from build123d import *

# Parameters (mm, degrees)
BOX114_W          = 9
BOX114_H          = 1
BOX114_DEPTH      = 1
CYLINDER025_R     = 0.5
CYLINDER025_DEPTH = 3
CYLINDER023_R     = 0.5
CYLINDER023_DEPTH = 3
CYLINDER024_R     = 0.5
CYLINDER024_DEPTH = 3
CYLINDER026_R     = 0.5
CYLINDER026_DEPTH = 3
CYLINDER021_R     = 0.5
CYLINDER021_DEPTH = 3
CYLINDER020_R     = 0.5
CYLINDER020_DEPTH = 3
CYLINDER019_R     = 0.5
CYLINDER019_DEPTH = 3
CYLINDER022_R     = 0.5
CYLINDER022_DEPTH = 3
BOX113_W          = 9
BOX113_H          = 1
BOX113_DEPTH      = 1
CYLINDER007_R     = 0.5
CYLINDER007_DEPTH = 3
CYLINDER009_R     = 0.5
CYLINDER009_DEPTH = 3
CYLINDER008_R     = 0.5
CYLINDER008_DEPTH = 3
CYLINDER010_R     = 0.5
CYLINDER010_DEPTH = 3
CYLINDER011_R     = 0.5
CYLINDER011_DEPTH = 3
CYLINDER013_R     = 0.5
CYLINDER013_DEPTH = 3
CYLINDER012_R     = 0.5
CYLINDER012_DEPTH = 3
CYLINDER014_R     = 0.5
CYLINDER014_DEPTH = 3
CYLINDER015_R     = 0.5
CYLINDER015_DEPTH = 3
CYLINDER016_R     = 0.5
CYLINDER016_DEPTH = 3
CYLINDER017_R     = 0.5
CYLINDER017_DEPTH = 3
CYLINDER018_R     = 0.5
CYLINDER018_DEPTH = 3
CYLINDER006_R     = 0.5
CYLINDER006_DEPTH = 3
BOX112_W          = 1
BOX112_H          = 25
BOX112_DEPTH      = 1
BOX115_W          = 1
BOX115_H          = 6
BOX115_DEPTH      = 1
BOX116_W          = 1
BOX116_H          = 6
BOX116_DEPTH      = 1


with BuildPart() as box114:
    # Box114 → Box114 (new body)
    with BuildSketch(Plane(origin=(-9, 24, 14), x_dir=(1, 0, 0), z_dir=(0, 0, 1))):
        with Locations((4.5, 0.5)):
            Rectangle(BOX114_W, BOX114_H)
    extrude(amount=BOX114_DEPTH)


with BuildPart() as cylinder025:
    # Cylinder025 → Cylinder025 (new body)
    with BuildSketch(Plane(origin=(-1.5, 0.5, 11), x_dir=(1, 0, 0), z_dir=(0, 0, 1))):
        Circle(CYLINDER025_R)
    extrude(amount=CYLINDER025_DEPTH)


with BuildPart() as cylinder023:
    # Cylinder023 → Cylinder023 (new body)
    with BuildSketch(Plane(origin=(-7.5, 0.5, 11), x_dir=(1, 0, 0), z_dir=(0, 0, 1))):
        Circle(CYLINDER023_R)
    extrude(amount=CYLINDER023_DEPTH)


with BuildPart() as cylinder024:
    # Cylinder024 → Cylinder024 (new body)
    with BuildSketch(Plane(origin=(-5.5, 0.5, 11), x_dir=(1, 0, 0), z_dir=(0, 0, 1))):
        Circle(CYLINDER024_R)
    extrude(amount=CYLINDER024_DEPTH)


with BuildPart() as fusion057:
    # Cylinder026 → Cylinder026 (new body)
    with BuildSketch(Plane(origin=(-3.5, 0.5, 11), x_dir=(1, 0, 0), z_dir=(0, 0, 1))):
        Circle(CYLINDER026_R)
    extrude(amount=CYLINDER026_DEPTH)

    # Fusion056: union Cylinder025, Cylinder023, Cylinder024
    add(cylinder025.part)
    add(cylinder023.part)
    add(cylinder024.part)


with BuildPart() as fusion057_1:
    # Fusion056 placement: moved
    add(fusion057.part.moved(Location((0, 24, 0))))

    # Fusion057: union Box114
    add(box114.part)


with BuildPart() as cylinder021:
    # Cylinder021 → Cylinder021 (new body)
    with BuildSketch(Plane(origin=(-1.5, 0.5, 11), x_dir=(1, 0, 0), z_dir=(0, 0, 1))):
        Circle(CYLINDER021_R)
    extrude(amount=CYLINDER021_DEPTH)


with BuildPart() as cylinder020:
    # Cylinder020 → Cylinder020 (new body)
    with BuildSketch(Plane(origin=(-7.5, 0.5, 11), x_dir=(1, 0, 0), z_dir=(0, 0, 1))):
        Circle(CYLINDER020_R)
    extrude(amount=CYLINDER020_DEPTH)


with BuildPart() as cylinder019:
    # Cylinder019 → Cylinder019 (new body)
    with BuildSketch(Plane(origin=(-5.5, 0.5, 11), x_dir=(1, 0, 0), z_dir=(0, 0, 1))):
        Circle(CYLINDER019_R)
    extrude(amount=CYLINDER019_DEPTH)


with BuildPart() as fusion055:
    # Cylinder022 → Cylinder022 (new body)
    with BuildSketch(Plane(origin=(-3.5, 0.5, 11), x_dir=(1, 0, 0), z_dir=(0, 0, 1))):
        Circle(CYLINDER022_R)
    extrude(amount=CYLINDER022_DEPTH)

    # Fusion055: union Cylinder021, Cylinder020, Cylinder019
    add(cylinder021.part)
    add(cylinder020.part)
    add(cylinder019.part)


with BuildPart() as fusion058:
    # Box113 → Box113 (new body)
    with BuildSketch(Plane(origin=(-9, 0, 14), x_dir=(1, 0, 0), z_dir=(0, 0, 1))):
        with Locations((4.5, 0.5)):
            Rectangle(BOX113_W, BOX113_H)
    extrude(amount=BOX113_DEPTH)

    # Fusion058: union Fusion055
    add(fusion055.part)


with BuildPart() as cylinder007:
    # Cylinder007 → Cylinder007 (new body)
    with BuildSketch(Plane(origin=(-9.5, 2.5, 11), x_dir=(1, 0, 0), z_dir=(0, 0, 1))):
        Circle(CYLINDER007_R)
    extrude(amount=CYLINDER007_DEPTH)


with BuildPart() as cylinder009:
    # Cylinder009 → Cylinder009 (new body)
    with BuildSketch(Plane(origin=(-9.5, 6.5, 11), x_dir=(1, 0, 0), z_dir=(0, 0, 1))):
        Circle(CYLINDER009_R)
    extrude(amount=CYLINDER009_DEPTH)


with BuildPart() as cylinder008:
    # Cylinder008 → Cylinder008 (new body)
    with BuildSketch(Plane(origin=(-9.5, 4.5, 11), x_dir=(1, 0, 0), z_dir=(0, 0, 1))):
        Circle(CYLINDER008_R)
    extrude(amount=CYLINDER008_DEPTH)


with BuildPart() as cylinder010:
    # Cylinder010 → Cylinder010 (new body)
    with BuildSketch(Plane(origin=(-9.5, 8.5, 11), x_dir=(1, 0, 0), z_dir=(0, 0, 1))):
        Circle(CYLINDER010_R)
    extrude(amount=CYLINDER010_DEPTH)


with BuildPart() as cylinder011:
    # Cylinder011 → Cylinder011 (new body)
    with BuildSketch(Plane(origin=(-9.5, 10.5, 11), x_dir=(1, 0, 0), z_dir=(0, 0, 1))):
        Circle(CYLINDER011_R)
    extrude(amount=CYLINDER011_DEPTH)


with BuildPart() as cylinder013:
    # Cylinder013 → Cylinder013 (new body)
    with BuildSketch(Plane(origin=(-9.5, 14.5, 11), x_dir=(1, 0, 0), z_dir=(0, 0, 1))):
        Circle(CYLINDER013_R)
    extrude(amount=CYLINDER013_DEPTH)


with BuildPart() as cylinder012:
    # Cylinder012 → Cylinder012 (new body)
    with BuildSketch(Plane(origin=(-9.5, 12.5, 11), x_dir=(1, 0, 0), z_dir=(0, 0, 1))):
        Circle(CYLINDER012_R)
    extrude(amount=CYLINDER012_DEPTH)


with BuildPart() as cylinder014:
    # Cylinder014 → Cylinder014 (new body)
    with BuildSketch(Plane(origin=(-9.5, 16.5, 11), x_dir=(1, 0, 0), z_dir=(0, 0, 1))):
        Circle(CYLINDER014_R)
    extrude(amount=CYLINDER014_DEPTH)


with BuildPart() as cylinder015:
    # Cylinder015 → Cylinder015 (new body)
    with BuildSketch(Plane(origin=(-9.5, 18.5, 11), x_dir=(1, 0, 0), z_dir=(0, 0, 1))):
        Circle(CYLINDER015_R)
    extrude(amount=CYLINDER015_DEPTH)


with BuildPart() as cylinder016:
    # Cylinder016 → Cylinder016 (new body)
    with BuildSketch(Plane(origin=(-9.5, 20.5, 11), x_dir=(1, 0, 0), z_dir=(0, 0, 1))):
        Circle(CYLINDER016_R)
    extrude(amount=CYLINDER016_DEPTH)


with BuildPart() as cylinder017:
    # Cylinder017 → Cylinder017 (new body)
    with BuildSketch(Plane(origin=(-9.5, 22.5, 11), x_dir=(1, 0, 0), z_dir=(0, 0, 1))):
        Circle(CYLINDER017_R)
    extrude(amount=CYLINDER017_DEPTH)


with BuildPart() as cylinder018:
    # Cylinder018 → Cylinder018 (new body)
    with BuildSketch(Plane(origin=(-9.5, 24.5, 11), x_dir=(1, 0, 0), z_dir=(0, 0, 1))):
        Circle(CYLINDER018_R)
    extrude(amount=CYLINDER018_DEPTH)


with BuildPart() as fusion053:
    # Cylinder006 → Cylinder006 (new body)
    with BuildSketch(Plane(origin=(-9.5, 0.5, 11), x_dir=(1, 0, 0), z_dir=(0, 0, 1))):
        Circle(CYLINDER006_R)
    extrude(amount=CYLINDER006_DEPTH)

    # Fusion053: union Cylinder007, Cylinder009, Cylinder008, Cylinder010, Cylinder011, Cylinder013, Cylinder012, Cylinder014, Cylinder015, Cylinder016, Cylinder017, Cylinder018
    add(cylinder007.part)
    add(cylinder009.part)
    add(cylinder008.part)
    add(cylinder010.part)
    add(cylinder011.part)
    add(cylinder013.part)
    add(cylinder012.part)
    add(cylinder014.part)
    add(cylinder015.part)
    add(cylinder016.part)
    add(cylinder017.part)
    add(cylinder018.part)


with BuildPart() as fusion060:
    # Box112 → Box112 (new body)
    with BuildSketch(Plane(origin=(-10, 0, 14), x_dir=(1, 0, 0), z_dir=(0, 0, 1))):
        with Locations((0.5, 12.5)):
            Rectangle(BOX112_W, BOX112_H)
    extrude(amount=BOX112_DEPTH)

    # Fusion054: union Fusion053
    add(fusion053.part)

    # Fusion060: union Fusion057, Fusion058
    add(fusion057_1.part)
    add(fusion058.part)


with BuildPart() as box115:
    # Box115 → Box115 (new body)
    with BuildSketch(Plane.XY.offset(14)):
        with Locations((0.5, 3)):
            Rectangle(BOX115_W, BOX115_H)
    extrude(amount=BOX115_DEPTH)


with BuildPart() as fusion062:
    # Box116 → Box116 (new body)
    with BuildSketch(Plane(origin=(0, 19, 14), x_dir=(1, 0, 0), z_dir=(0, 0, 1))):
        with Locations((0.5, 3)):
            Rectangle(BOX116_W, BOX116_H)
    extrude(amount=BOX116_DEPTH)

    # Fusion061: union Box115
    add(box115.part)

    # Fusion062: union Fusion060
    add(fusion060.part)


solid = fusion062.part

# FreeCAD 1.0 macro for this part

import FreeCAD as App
import Part
import Sketcher
Q = App.Units.Quantity

doc = App.newDocument("Part")
body = doc.addObject("PartDesign::Body", "Body")

sketch1 = doc.addObject("Sketcher::SketchObject", "Sketch")
body.addObject(sketch1)
sketch1.AttachmentSupport = (doc.XY_Plane, [""])
sketch1.MapMode = "FlatFace"
sketch1.AttachmentOffset = App.Placement(App.Vector(0, 0, 14), App.Rotation())
sketch1.addGeometry(Part.LineSegment(App.Vector(-9, 25, 0), App.Vector(-9, 24, 0)), False)
sketch1.addGeometry(Part.LineSegment(App.Vector(-9, 24, 0), App.Vector(0, 24, 0)), False)
sketch1.addGeometry(Part.LineSegment(App.Vector(0, 24, 0), App.Vector(0, 25, 0)), False)
sketch1.addGeometry(Part.LineSegment(App.Vector(0, 25, 0), App.Vector(-9, 25, 0)), False)
sketch1.addConstraint(Sketcher.Constraint("Coincident", 0, 2, 1, 1))
sketch1.addConstraint(Sketcher.Constraint("Coincident", 1, 2, 2, 1))
sketch1.addConstraint(Sketcher.Constraint("Coincident", 2, 2, 3, 1))
sketch1.addConstraint(Sketcher.Constraint("Coincident", 3, 2, 0, 1))
sketch1.addConstraint(Sketcher.Constraint("Vertical", 0))
sketch1.addConstraint(Sketcher.Constraint("Horizontal", 1))
sketch1.addConstraint(Sketcher.Constraint("Vertical", 2))
sketch1.addConstraint(Sketcher.Constraint("Horizontal", 3))
sketch1.addConstraint(Sketcher.Constraint("PointOnObject", 1, 2, -2))
sketch1.addConstraint(Sketcher.Constraint("DistanceX", 1, 1, 1, 2, Q("9 mm")))
sketch1.addConstraint(Sketcher.Constraint("DistanceY", 0, 2, 0, 1, Q("1 mm")))
sketch1.addConstraint(Sketcher.Constraint("DistanceY", -1, 1, 0, 2, Q("24 mm")))
pad1 = doc.addObject("PartDesign::Pad", "Pad")
body.addObject(pad1)
pad1.Profile = sketch1
pad1.Length = 1
body2 = doc.addObject("PartDesign::Body", "Body001")

sketch2 = doc.addObject("Sketcher::SketchObject", "Sketch001")
body2.addObject(sketch2)
sketch2.AttachmentSupport = (doc.getObject("XY_Plane001"), [""])
sketch2.MapMode = "FlatFace"
sketch2.AttachmentOffset = App.Placement(App.Vector(0, 0, 11), App.Rotation())
sketch2.addGeometry(Part.Circle(App.Vector(-1.5, 0.5, 0), App.Vector(0, 0, 1), 0.5), False)
sketch2.addConstraint(Sketcher.Constraint("Diameter", 0, Q("1 mm")))
sketch2.addConstraint(Sketcher.Constraint("DistanceX", 0, 3, -1, 1, Q("1.5 mm")))
sketch2.addConstraint(Sketcher.Constraint("DistanceY", -1, 1, 0, 3, Q("0.5 mm")))
pad2 = doc.addObject("PartDesign::Pad", "Pad001")
body2.addObject(pad2)
pad2.Profile = sketch2
pad2.Length = 3
body3 = doc.addObject("PartDesign::Body", "Body002")

sketch3 = doc.addObject("Sketcher::SketchObject", "Sketch002")
body3.addObject(sketch3)
sketch3.AttachmentSupport = (doc.getObject("XY_Plane002"), [""])
sketch3.MapMode = "FlatFace"
sketch3.AttachmentOffset = App.Placement(App.Vector(0, 0, 11), App.Rotation())
sketch3.addGeometry(Part.Circle(App.Vector(-7.5, 0.5, 0), App.Vector(0, 0, 1), 0.5), False)
sketch3.addConstraint(Sketcher.Constraint("Diameter", 0, Q("1 mm")))
sketch3.addConstraint(Sketcher.Constraint("DistanceX", 0, 3, -1, 1, Q("7.5 mm")))
sketch3.addConstraint(Sketcher.Constraint("DistanceY", -1, 1, 0, 3, Q("0.5 mm")))
pad3 = doc.addObject("PartDesign::Pad", "Pad002")
body3.addObject(pad3)
pad3.Profile = sketch3
pad3.Length = 3
body4 = doc.addObject("PartDesign::Body", "Body003")

sketch4 = doc.addObject("Sketcher::SketchObject", "Sketch003")
body4.addObject(sketch4)
sketch4.AttachmentSupport = (doc.getObject("XY_Plane003"), [""])
sketch4.MapMode = "FlatFace"
sketch4.AttachmentOffset = App.Placement(App.Vector(0, 0, 11), App.Rotation())
sketch4.addGeometry(Part.Circle(App.Vector(-5.5, 0.5, 0), App.Vector(0, 0, 1), 0.5), False)
sketch4.addConstraint(Sketcher.Constraint("Diameter", 0, Q("1 mm")))
sketch4.addConstraint(Sketcher.Constraint("DistanceX", 0, 3, -1, 1, Q("5.5 mm")))
sketch4.addConstraint(Sketcher.Constraint("DistanceY", -1, 1, 0, 3, Q("0.5 mm")))
pad4 = doc.addObject("PartDesign::Pad", "Pad003")
body4.addObject(pad4)
pad4.Profile = sketch4
pad4.Length = 3
body5 = doc.addObject("PartDesign::Body", "Body004")
body5.AllowCompound = True

sketch5 = doc.addObject("Sketcher::SketchObject", "Sketch004")
body5.addObject(sketch5)
sketch5.AttachmentSupport = (doc.getObject("XY_Plane004"), [""])
sketch5.MapMode = "FlatFace"
sketch5.AttachmentOffset = App.Placement(App.Vector(0, 0, 11), App.Rotation())
sketch5.addGeometry(Part.Circle(App.Vector(-3.5, 0.5, 0), App.Vector(0, 0, 1), 0.5), False)
sketch5.addConstraint(Sketcher.Constraint("Diameter", 0, Q("1 mm")))
sketch5.addConstraint(Sketcher.Constraint("DistanceX", 0, 3, -1, 1, Q("3.5 mm")))
sketch5.addConstraint(Sketcher.Constraint("DistanceY", -1, 1, 0, 3, Q("0.5 mm")))
pad5 = doc.addObject("PartDesign::Pad", "Pad004")
body5.addObject(pad5)
pad5.Profile = sketch5
pad5.Length = 3
doc.recompute()

boolean = doc.addObject("PartDesign::Boolean", "Boolean")
body5.addObject(boolean)
boolean.Type = "Fuse"
boolean.addObjects([body2])
doc.recompute()

boolean2 = doc.addObject("PartDesign::Boolean", "Boolean001")
body5.addObject(boolean2)
boolean2.Type = "Fuse"
boolean2.addObjects([body3])
doc.recompute()

boolean3 = doc.addObject("PartDesign::Boolean", "Boolean002")
body5.addObject(boolean3)
boolean3.Type = "Fuse"
boolean3.addObjects([body4])
body6 = doc.addObject("PartDesign::Body", "Body005")
body6.AllowCompound = True
doc.recompute()

body5.Placement = App.Placement(App.Vector(0, 24, 0), App.Rotation(App.Vector(0, 0, 1), 0))
boolean4 = doc.addObject("PartDesign::Boolean", "Boolean003")
body6.addObject(boolean4)
boolean4.Type = "Fuse"
boolean4.addObjects([body5])
doc.recompute()

boolean5 = doc.addObject("PartDesign::Boolean", "Boolean004")
body6.addObject(boolean5)
boolean5.Type = "Fuse"
boolean5.addObjects([body])
body7 = doc.addObject("PartDesign::Body", "Body006")

sketch6 = doc.addObject("Sketcher::SketchObject", "Sketch005")
body7.addObject(sketch6)
sketch6.AttachmentSupport = (doc.getObject("XY_Plane006"), [""])
sketch6.MapMode = "FlatFace"
sketch6.AttachmentOffset = App.Placement(App.Vector(0, 0, 11), App.Rotation())
sketch6.addGeometry(Part.Circle(App.Vector(-1.5, 0.5, 0), App.Vector(0, 0, 1), 0.5), False)
sketch6.addConstraint(Sketcher.Constraint("Diameter", 0, Q("1 mm")))
sketch6.addConstraint(Sketcher.Constraint("DistanceX", 0, 3, -1, 1, Q("1.5 mm")))
sketch6.addConstraint(Sketcher.Constraint("DistanceY", -1, 1, 0, 3, Q("0.5 mm")))
pad6 = doc.addObject("PartDesign::Pad", "Pad005")
body7.addObject(pad6)
pad6.Profile = sketch6
pad6.Length = 3
body8 = doc.addObject("PartDesign::Body", "Body007")

sketch7 = doc.addObject("Sketcher::SketchObject", "Sketch006")
body8.addObject(sketch7)
sketch7.AttachmentSupport = (doc.getObject("XY_Plane007"), [""])
sketch7.MapMode = "FlatFace"
sketch7.AttachmentOffset = App.Placement(App.Vector(0, 0, 11), App.Rotation())
sketch7.addGeometry(Part.Circle(App.Vector(-7.5, 0.5, 0), App.Vector(0, 0, 1), 0.5), False)
sketch7.addConstraint(Sketcher.Constraint("Diameter", 0, Q("1 mm")))
sketch7.addConstraint(Sketcher.Constraint("DistanceX", 0, 3, -1, 1, Q("7.5 mm")))
sketch7.addConstraint(Sketcher.Constraint("DistanceY", -1, 1, 0, 3, Q("0.5 mm")))
pad7 = doc.addObject("PartDesign::Pad", "Pad006")
body8.addObject(pad7)
pad7.Profile = sketch7
pad7.Length = 3
body9 = doc.addObject("PartDesign::Body", "Body008")

sketch8 = doc.addObject("Sketcher::SketchObject", "Sketch007")
body9.addObject(sketch8)
sketch8.AttachmentSupport = (doc.getObject("XY_Plane008"), [""])
sketch8.MapMode = "FlatFace"
sketch8.AttachmentOffset = App.Placement(App.Vector(0, 0, 11), App.Rotation())
sketch8.addGeometry(Part.Circle(App.Vector(-5.5, 0.5, 0), App.Vector(0, 0, 1), 0.5), False)
sketch8.addConstraint(Sketcher.Constraint("Diameter", 0, Q("1 mm")))
sketch8.addConstraint(Sketcher.Constraint("DistanceX", 0, 3, -1, 1, Q("5.5 mm")))
sketch8.addConstraint(Sketcher.Constraint("DistanceY", -1, 1, 0, 3, Q("0.5 mm")))
pad8 = doc.addObject("PartDesign::Pad", "Pad007")
body9.addObject(pad8)
pad8.Profile = sketch8
pad8.Length = 3
body10 = doc.addObject("PartDesign::Body", "Body009")
body10.AllowCompound = True

sketch9 = doc.addObject("Sketcher::SketchObject", "Sketch008")
body10.addObject(sketch9)
sketch9.AttachmentSupport = (doc.getObject("XY_Plane009"), [""])
sketch9.MapMode = "FlatFace"
sketch9.AttachmentOffset = App.Placement(App.Vector(0, 0, 11), App.Rotation())
sketch9.addGeometry(Part.Circle(App.Vector(-3.5, 0.5, 0), App.Vector(0, 0, 1), 0.5), False)
sketch9.addConstraint(Sketcher.Constraint("Diameter", 0, Q("1 mm")))
sketch9.addConstraint(Sketcher.Constraint("DistanceX", 0, 3, -1, 1, Q("3.5 mm")))
sketch9.addConstraint(Sketcher.Constraint("DistanceY", -1, 1, 0, 3, Q("0.5 mm")))
pad9 = doc.addObject("PartDesign::Pad", "Pad008")
body10.addObject(pad9)
pad9.Profile = sketch9
pad9.Length = 3
doc.recompute()

boolean6 = doc.addObject("PartDesign::Boolean", "Boolean005")
body10.addObject(boolean6)
boolean6.Type = "Fuse"
boolean6.addObjects([body7])
doc.recompute()

boolean7 = doc.addObject("PartDesign::Boolean", "Boolean006")
body10.addObject(boolean7)
boolean7.Type = "Fuse"
boolean7.addObjects([body8])
doc.recompute()

boolean8 = doc.addObject("PartDesign::Boolean", "Boolean007")
body10.addObject(boolean8)
boolean8.Type = "Fuse"
boolean8.addObjects([body9])
body11 = doc.addObject("PartDesign::Body", "Body010")

sketch10 = doc.addObject("Sketcher::SketchObject", "Sketch009")
body11.addObject(sketch10)
sketch10.AttachmentSupport = (doc.getObject("XY_Plane010"), [""])
sketch10.MapMode = "FlatFace"
sketch10.AttachmentOffset = App.Placement(App.Vector(0, 0, 14), App.Rotation())
sketch10.addGeometry(Part.LineSegment(App.Vector(-9, 1, 0), App.Vector(-9, 0, 0)), False)
sketch10.addGeometry(Part.LineSegment(App.Vector(-9, 0, 0), App.Vector(0, 0, 0)), False)
sketch10.addGeometry(Part.LineSegment(App.Vector(0, 0, 0), App.Vector(0, 1, 0)), False)
sketch10.addGeometry(Part.LineSegment(App.Vector(0, 1, 0), App.Vector(-9, 1, 0)), False)
sketch10.addConstraint(Sketcher.Constraint("Coincident", 0, 2, 1, 1))
sketch10.addConstraint(Sketcher.Constraint("Coincident", 1, 2, 2, 1))
sketch10.addConstraint(Sketcher.Constraint("Coincident", 2, 2, 3, 1))
sketch10.addConstraint(Sketcher.Constraint("Coincident", 3, 2, 0, 1))
sketch10.addConstraint(Sketcher.Constraint("Vertical", 0))
sketch10.addConstraint(Sketcher.Constraint("Horizontal", 1))
sketch10.addConstraint(Sketcher.Constraint("Vertical", 2))
sketch10.addConstraint(Sketcher.Constraint("Horizontal", 3))
sketch10.addConstraint(Sketcher.Constraint("Coincident", 1, 2, -1, 1))
sketch10.addConstraint(Sketcher.Constraint("DistanceX", 1, 1, 1, 2, Q("9 mm")))
sketch10.addConstraint(Sketcher.Constraint("DistanceY", 0, 2, 0, 1, Q("1 mm")))
pad10 = doc.addObject("PartDesign::Pad", "Pad009")
body11.addObject(pad10)
pad10.Profile = sketch10
pad10.Length = 1
doc.recompute()

boolean9 = doc.addObject("PartDesign::Boolean", "Boolean008")
body11.addObject(boolean9)
boolean9.Type = "Fuse"
boolean9.addObjects([body10])
body12 = doc.addObject("PartDesign::Body", "Body011")

sketch11 = doc.addObject("Sketcher::SketchObject", "Sketch010")
body12.addObject(sketch11)
sketch11.AttachmentSupport = (doc.getObject("XY_Plane011"), [""])
sketch11.MapMode = "FlatFace"
sketch11.AttachmentOffset = App.Placement(App.Vector(0, 0, 11), App.Rotation())
sketch11.addGeometry(Part.Circle(App.Vector(-9.5, 2.5, 0), App.Vector(0, 0, 1), 0.5), False)
sketch11.addConstraint(Sketcher.Constraint("Diameter", 0, Q("1 mm")))
sketch11.addConstraint(Sketcher.Constraint("DistanceX", 0, 3, -1, 1, Q("9.5 mm")))
sketch11.addConstraint(Sketcher.Constraint("DistanceY", -1, 1, 0, 3, Q("2.5 mm")))
pad11 = doc.addObject("PartDesign::Pad", "Pad010")
body12.addObject(pad11)
pad11.Profile = sketch11
pad11.Length = 3
body13 = doc.addObject("PartDesign::Body", "Body012")

sketch12 = doc.addObject("Sketcher::SketchObject", "Sketch011")
body13.addObject(sketch12)
sketch12.AttachmentSupport = (doc.getObject("XY_Plane012"), [""])
sketch12.MapMode = "FlatFace"
sketch12.AttachmentOffset = App.Placement(App.Vector(0, 0, 11), App.Rotation())
sketch12.addGeometry(Part.Circle(App.Vector(-9.5, 6.5, 0), App.Vector(0, 0, 1), 0.5), False)
sketch12.addConstraint(Sketcher.Constraint("Diameter", 0, Q("1 mm")))
sketch12.addConstraint(Sketcher.Constraint("DistanceX", 0, 3, -1, 1, Q("9.5 mm")))
sketch12.addConstraint(Sketcher.Constraint("DistanceY", -1, 1, 0, 3, Q("6.5 mm")))
pad12 = doc.addObject("PartDesign::Pad", "Pad011")
body13.addObject(pad12)
pad12.Profile = sketch12
pad12.Length = 3
body14 = doc.addObject("PartDesign::Body", "Body013")

sketch13 = doc.addObject("Sketcher::SketchObject", "Sketch012")
body14.addObject(sketch13)
sketch13.AttachmentSupport = (doc.getObject("XY_Plane013"), [""])
sketch13.MapMode = "FlatFace"
sketch13.AttachmentOffset = App.Placement(App.Vector(0, 0, 11), App.Rotation())
sketch13.addGeometry(Part.Circle(App.Vector(-9.5, 4.5, 0), App.Vector(0, 0, 1), 0.5), False)
sketch13.addConstraint(Sketcher.Constraint("Diameter", 0, Q("1 mm")))
sketch13.addConstraint(Sketcher.Constraint("DistanceX", 0, 3, -1, 1, Q("9.5 mm")))
sketch13.addConstraint(Sketcher.Constraint("DistanceY", -1, 1, 0, 3, Q("4.5 mm")))
pad13 = doc.addObject("PartDesign::Pad", "Pad012")
body14.addObject(pad13)
pad13.Profile = sketch13
pad13.Length = 3
body15 = doc.addObject("PartDesign::Body", "Body014")

sketch14 = doc.addObject("Sketcher::SketchObject", "Sketch013")
body15.addObject(sketch14)
sketch14.AttachmentSupport = (doc.getObject("XY_Plane014"), [""])
sketch14.MapMode = "FlatFace"
sketch14.AttachmentOffset = App.Placement(App.Vector(0, 0, 11), App.Rotation())
sketch14.addGeometry(Part.Circle(App.Vector(-9.5, 8.5, 0), App.Vector(0, 0, 1), 0.5), False)
sketch14.addConstraint(Sketcher.Constraint("Diameter", 0, Q("1 mm")))
sketch14.addConstraint(Sketcher.Constraint("DistanceX", 0, 3, -1, 1, Q("9.5 mm")))
sketch14.addConstraint(Sketcher.Constraint("DistanceY", -1, 1, 0, 3, Q("8.5 mm")))
pad14 = doc.addObject("PartDesign::Pad", "Pad013")
body15.addObject(pad14)
pad14.Profile = sketch14
pad14.Length = 3
body16 = doc.addObject("PartDesign::Body", "Body015")

sketch15 = doc.addObject("Sketcher::SketchObject", "Sketch014")
body16.addObject(sketch15)
sketch15.AttachmentSupport = (doc.getObject("XY_Plane015"), [""])
sketch15.MapMode = "FlatFace"
sketch15.AttachmentOffset = App.Placement(App.Vector(0, 0, 11), App.Rotation())
sketch15.addGeometry(Part.Circle(App.Vector(-9.5, 10.5, 0), App.Vector(0, 0, 1), 0.5), False)
sketch15.addConstraint(Sketcher.Constraint("Diameter", 0, Q("1 mm")))
sketch15.addConstraint(Sketcher.Constraint("DistanceX", 0, 3, -1, 1, Q("9.5 mm")))
sketch15.addConstraint(Sketcher.Constraint("DistanceY", -1, 1, 0, 3, Q("10.5 mm")))
pad15 = doc.addObject("PartDesign::Pad", "Pad014")
body16.addObject(pad15)
pad15.Profile = sketch15
pad15.Length = 3
body17 = doc.addObject("PartDesign::Body", "Body016")

sketch16 = doc.addObject("Sketcher::SketchObject", "Sketch015")
body17.addObject(sketch16)
sketch16.AttachmentSupport = (doc.getObject("XY_Plane016"), [""])
sketch16.MapMode = "FlatFace"
sketch16.AttachmentOffset = App.Placement(App.Vector(0, 0, 11), App.Rotation())
sketch16.addGeometry(Part.Circle(App.Vector(-9.5, 14.5, 0), App.Vector(0, 0, 1), 0.5), False)
sketch16.addConstraint(Sketcher.Constraint("Diameter", 0, Q("1 mm")))
sketch16.addConstraint(Sketcher.Constraint("DistanceX", 0, 3, -1, 1, Q("9.5 mm")))
sketch16.addConstraint(Sketcher.Constraint("DistanceY", -1, 1, 0, 3, Q("14.5 mm")))
pad16 = doc.addObject("PartDesign::Pad", "Pad015")
body17.addObject(pad16)
pad16.Profile = sketch16
pad16.Length = 3
body18 = doc.addObject("PartDesign::Body", "Body017")

sketch17 = doc.addObject("Sketcher::SketchObject", "Sketch016")
body18.addObject(sketch17)
sketch17.AttachmentSupport = (doc.getObject("XY_Plane017"), [""])
sketch17.MapMode = "FlatFace"
sketch17.AttachmentOffset = App.Placement(App.Vector(0, 0, 11), App.Rotation())
sketch17.addGeometry(Part.Circle(App.Vector(-9.5, 12.5, 0), App.Vector(0, 0, 1), 0.5), False)
sketch17.addConstraint(Sketcher.Constraint("Diameter", 0, Q("1 mm")))
sketch17.addConstraint(Sketcher.Constraint("DistanceX", 0, 3, -1, 1, Q("9.5 mm")))
sketch17.addConstraint(Sketcher.Constraint("DistanceY", -1, 1, 0, 3, Q("12.5 mm")))
pad17 = doc.addObject("PartDesign::Pad", "Pad016")
body18.addObject(pad17)
pad17.Profile = sketch17
pad17.Length = 3
body19 = doc.addObject("PartDesign::Body", "Body018")

sketch18 = doc.addObject("Sketcher::SketchObject", "Sketch017")
body19.addObject(sketch18)
sketch18.AttachmentSupport = (doc.getObject("XY_Plane018"), [""])
sketch18.MapMode = "FlatFace"
sketch18.AttachmentOffset = App.Placement(App.Vector(0, 0, 11), App.Rotation())
sketch18.addGeometry(Part.Circle(App.Vector(-9.5, 16.5, 0), App.Vector(0, 0, 1), 0.5), False)
sketch18.addConstraint(Sketcher.Constraint("Diameter", 0, Q("1 mm")))
sketch18.addConstraint(Sketcher.Constraint("DistanceX", 0, 3, -1, 1, Q("9.5 mm")))
sketch18.addConstraint(Sketcher.Constraint("DistanceY", -1, 1, 0, 3, Q("16.5 mm")))
pad18 = doc.addObject("PartDesign::Pad", "Pad017")
body19.addObject(pad18)
pad18.Profile = sketch18
pad18.Length = 3
body20 = doc.addObject("PartDesign::Body", "Body019")

sketch19 = doc.addObject("Sketcher::SketchObject", "Sketch018")
body20.addObject(sketch19)
sketch19.AttachmentSupport = (doc.getObject("XY_Plane019"), [""])
sketch19.MapMode = "FlatFace"
sketch19.AttachmentOffset = App.Placement(App.Vector(0, 0, 11), App.Rotation())
sketch19.addGeometry(Part.Circle(App.Vector(-9.5, 18.5, 0), App.Vector(0, 0, 1), 0.5), False)
sketch19.addConstraint(Sketcher.Constraint("Diameter", 0, Q("1 mm")))
sketch19.addConstraint(Sketcher.Constraint("DistanceX", 0, 3, -1, 1, Q("9.5 mm")))
sketch19.addConstraint(Sketcher.Constraint("DistanceY", -1, 1, 0, 3, Q("18.5 mm")))
pad19 = doc.addObject("PartDesign::Pad", "Pad018")
body20.addObject(pad19)
pad19.Profile = sketch19
pad19.Length = 3
body21 = doc.addObject("PartDesign::Body", "Body020")

sketch20 = doc.addObject("Sketcher::SketchObject", "Sketch019")
body21.addObject(sketch20)
sketch20.AttachmentSupport = (doc.getObject("XY_Plane020"), [""])
sketch20.MapMode = "FlatFace"
sketch20.AttachmentOffset = App.Placement(App.Vector(0, 0, 11), App.Rotation())
sketch20.addGeometry(Part.Circle(App.Vector(-9.5, 20.5, 0), App.Vector(0, 0, 1), 0.5), False)
sketch20.addConstraint(Sketcher.Constraint("Diameter", 0, Q("1 mm")))
sketch20.addConstraint(Sketcher.Constraint("DistanceX", 0, 3, -1, 1, Q("9.5 mm")))
sketch20.addConstraint(Sketcher.Constraint("DistanceY", -1, 1, 0, 3, Q("20.5 mm")))
pad20 = doc.addObject("PartDesign::Pad", "Pad019")
body21.addObject(pad20)
pad20.Profile = sketch20
pad20.Length = 3
body22 = doc.addObject("PartDesign::Body", "Body021")

sketch21 = doc.addObject("Sketcher::SketchObject", "Sketch020")
body22.addObject(sketch21)
sketch21.AttachmentSupport = (doc.getObject("XY_Plane021"), [""])
sketch21.MapMode = "FlatFace"
sketch21.AttachmentOffset = App.Placement(App.Vector(0, 0, 11), App.Rotation())
sketch21.addGeometry(Part.Circle(App.Vector(-9.5, 22.5, 0), App.Vector(0, 0, 1), 0.5), False)
sketch21.addConstraint(Sketcher.Constraint("Diameter", 0, Q("1 mm")))
sketch21.addConstraint(Sketcher.Constraint("DistanceX", 0, 3, -1, 1, Q("9.5 mm")))
sketch21.addConstraint(Sketcher.Constraint("DistanceY", -1, 1, 0, 3, Q("22.5 mm")))
pad21 = doc.addObject("PartDesign::Pad", "Pad020")
body22.addObject(pad21)
pad21.Profile = sketch21
pad21.Length = 3
body23 = doc.addObject("PartDesign::Body", "Body022")

sketch22 = doc.addObject("Sketcher::SketchObject", "Sketch021")
body23.addObject(sketch22)
sketch22.AttachmentSupport = (doc.getObject("XY_Plane022"), [""])
sketch22.MapMode = "FlatFace"
sketch22.AttachmentOffset = App.Placement(App.Vector(0, 0, 11), App.Rotation())
sketch22.addGeometry(Part.Circle(App.Vector(-9.5, 24.5, 0), App.Vector(0, 0, 1), 0.5), False)
sketch22.addConstraint(Sketcher.Constraint("Diameter", 0, Q("1 mm")))
sketch22.addConstraint(Sketcher.Constraint("DistanceX", 0, 3, -1, 1, Q("9.5 mm")))
sketch22.addConstraint(Sketcher.Constraint("DistanceY", -1, 1, 0, 3, Q("24.5 mm")))
pad22 = doc.addObject("PartDesign::Pad", "Pad021")
body23.addObject(pad22)
pad22.Profile = sketch22
pad22.Length = 3
body24 = doc.addObject("PartDesign::Body", "Body023")
body24.AllowCompound = True

sketch23 = doc.addObject("Sketcher::SketchObject", "Sketch022")
body24.addObject(sketch23)
sketch23.AttachmentSupport = (doc.getObject("XY_Plane023"), [""])
sketch23.MapMode = "FlatFace"
sketch23.AttachmentOffset = App.Placement(App.Vector(0, 0, 11), App.Rotation())
sketch23.addGeometry(Part.Circle(App.Vector(-9.5, 0.5, 0), App.Vector(0, 0, 1), 0.5), False)
sketch23.addConstraint(Sketcher.Constraint("Diameter", 0, Q("1 mm")))
sketch23.addConstraint(Sketcher.Constraint("DistanceX", 0, 3, -1, 1, Q("9.5 mm")))
sketch23.addConstraint(Sketcher.Constraint("DistanceY", -1, 1, 0, 3, Q("0.5 mm")))
pad23 = doc.addObject("PartDesign::Pad", "Pad022")
body24.addObject(pad23)
pad23.Profile = sketch23
pad23.Length = 3
doc.recompute()

boolean10 = doc.addObject("PartDesign::Boolean", "Boolean009")
body24.addObject(boolean10)
boolean10.Type = "Fuse"
boolean10.addObjects([body12])
doc.recompute()

boolean11 = doc.addObject("PartDesign::Boolean", "Boolean010")
body24.addObject(boolean11)
boolean11.Type = "Fuse"
boolean11.addObjects([body13])
doc.recompute()

boolean12 = doc.addObject("PartDesign::Boolean", "Boolean011")
body24.addObject(boolean12)
boolean12.Type = "Fuse"
boolean12.addObjects([body14])
doc.recompute()

boolean13 = doc.addObject("PartDesign::Boolean", "Boolean012")
body24.addObject(boolean13)
boolean13.Type = "Fuse"
boolean13.addObjects([body15])
doc.recompute()

boolean14 = doc.addObject("PartDesign::Boolean", "Boolean013")
body24.addObject(boolean14)
boolean14.Type = "Fuse"
boolean14.addObjects([body16])
doc.recompute()

boolean15 = doc.addObject("PartDesign::Boolean", "Boolean014")
body24.addObject(boolean15)
boolean15.Type = "Fuse"
boolean15.addObjects([body17])
doc.recompute()

boolean16 = doc.addObject("PartDesign::Boolean", "Boolean015")
body24.addObject(boolean16)
boolean16.Type = "Fuse"
boolean16.addObjects([body18])
doc.recompute()

boolean17 = doc.addObject("PartDesign::Boolean", "Boolean016")
body24.addObject(boolean17)
boolean17.Type = "Fuse"
boolean17.addObjects([body19])
doc.recompute()

boolean18 = doc.addObject("PartDesign::Boolean", "Boolean017")
body24.addObject(boolean18)
boolean18.Type = "Fuse"
boolean18.addObjects([body20])
doc.recompute()

boolean19 = doc.addObject("PartDesign::Boolean", "Boolean018")
body24.addObject(boolean19)
boolean19.Type = "Fuse"
boolean19.addObjects([body21])
doc.recompute()

boolean20 = doc.addObject("PartDesign::Boolean", "Boolean019")
body24.addObject(boolean20)
boolean20.Type = "Fuse"
boolean20.addObjects([body22])
doc.recompute()

boolean21 = doc.addObject("PartDesign::Boolean", "Boolean020")
body24.addObject(boolean21)
boolean21.Type = "Fuse"
boolean21.addObjects([body23])
body25 = doc.addObject("PartDesign::Body", "Body024")

sketch24 = doc.addObject("Sketcher::SketchObject", "Sketch023")
body25.addObject(sketch24)
sketch24.AttachmentSupport = (doc.getObject("XY_Plane024"), [""])
sketch24.MapMode = "FlatFace"
sketch24.AttachmentOffset = App.Placement(App.Vector(0, 0, 14), App.Rotation())
sketch24.addGeometry(Part.LineSegment(App.Vector(-10, 25, 0), App.Vector(-10, 0, 0)), False)
sketch24.addGeometry(Part.LineSegment(App.Vector(-10, 0, 0), App.Vector(-9, 0, 0)), False)
sketch24.addGeometry(Part.LineSegment(App.Vector(-9, 0, 0), App.Vector(-9, 25, 0)), False)
sketch24.addGeometry(Part.LineSegment(App.Vector(-9, 25, 0), App.Vector(-10, 25, 0)), False)
sketch24.addConstraint(Sketcher.Constraint("Coincident", 0, 2, 1, 1))
sketch24.addConstraint(Sketcher.Constraint("Coincident", 1, 2, 2, 1))
sketch24.addConstraint(Sketcher.Constraint("Coincident", 2, 2, 3, 1))
sketch24.addConstraint(Sketcher.Constraint("Coincident", 3, 2, 0, 1))
sketch24.addConstraint(Sketcher.Constraint("Vertical", 0))
sketch24.addConstraint(Sketcher.Constraint("Horizontal", 1))
sketch24.addConstraint(Sketcher.Constraint("Vertical", 2))
sketch24.addConstraint(Sketcher.Constraint("Horizontal", 3))
sketch24.addConstraint(Sketcher.Constraint("PointOnObject", 0, 2, -1))
sketch24.addConstraint(Sketcher.Constraint("DistanceX", 1, 1, 1, 2, Q("1 mm")))
sketch24.addConstraint(Sketcher.Constraint("DistanceY", 0, 2, 0, 1, Q("25 mm")))
sketch24.addConstraint(Sketcher.Constraint("DistanceX", 0, 2, -1, 1, Q("10 mm")))
pad24 = doc.addObject("PartDesign::Pad", "Pad023")
body25.addObject(pad24)
pad24.Profile = sketch24
pad24.Length = 1
doc.recompute()

boolean22 = doc.addObject("PartDesign::Boolean", "Boolean021")
body25.addObject(boolean22)
boolean22.Type = "Fuse"
boolean22.addObjects([body24])
doc.recompute()

boolean23 = doc.addObject("PartDesign::Boolean", "Boolean022")
body25.addObject(boolean23)
boolean23.Type = "Fuse"
boolean23.addObjects([body6])
doc.recompute()

boolean24 = doc.addObject("PartDesign::Boolean", "Boolean023")
body25.addObject(boolean24)
boolean24.Type = "Fuse"
boolean24.addObjects([body11])
body26 = doc.addObject("PartDesign::Body", "Body025")

sketch25 = doc.addObject("Sketcher::SketchObject", "Sketch024")
body26.addObject(sketch25)
sketch25.AttachmentSupport = (doc.getObject("XY_Plane025"), [""])
sketch25.MapMode = "FlatFace"
sketch25.AttachmentOffset = App.Placement(App.Vector(0, 0, 14), App.Rotation())
sketch25.addGeometry(Part.LineSegment(App.Vector(0, 6, 0), App.Vector(0, 0, 0)), False)
sketch25.addGeometry(Part.LineSegment(App.Vector(0, 0, 0), App.Vector(1, 0, 0)), False)
sketch25.addGeometry(Part.LineSegment(App.Vector(1, 0, 0), App.Vector(1, 6, 0)), False)
sketch25.addGeometry(Part.LineSegment(App.Vector(1, 6, 0), App.Vector(0, 6, 0)), False)
sketch25.addConstraint(Sketcher.Constraint("Coincident", 0, 2, 1, 1))
sketch25.addConstraint(Sketcher.Constraint("Coincident", 1, 2, 2, 1))
sketch25.addConstraint(Sketcher.Constraint("Coincident", 2, 2, 3, 1))
sketch25.addConstraint(Sketcher.Constraint("Coincident", 3, 2, 0, 1))
sketch25.addConstraint(Sketcher.Constraint("Vertical", 0))
sketch25.addConstraint(Sketcher.Constraint("Horizontal", 1))
sketch25.addConstraint(Sketcher.Constraint("Vertical", 2))
sketch25.addConstraint(Sketcher.Constraint("Horizontal", 3))
sketch25.addConstraint(Sketcher.Constraint("Coincident", 0, 2, -1, 1))
sketch25.addConstraint(Sketcher.Constraint("DistanceX", 1, 1, 1, 2, Q("1 mm")))
sketch25.addConstraint(Sketcher.Constraint("DistanceY", 0, 2, 0, 1, Q("6 mm")))
pad25 = doc.addObject("PartDesign::Pad", "Pad024")
body26.addObject(pad25)
pad25.Profile = sketch25
pad25.Length = 1
body27 = doc.addObject("PartDesign::Body", "Body026")
body27.AllowCompound = True

sketch26 = doc.addObject("Sketcher::SketchObject", "Sketch025")
body27.addObject(sketch26)
sketch26.AttachmentSupport = (doc.getObject("XY_Plane026"), [""])
sketch26.MapMode = "FlatFace"
sketch26.AttachmentOffset = App.Placement(App.Vector(0, 0, 14), App.Rotation())
sketch26.addGeometry(Part.LineSegment(App.Vector(0, 25, 0), App.Vector(0, 19, 0)), False)
sketch26.addGeometry(Part.LineSegment(App.Vector(0, 19, 0), App.Vector(1, 19, 0)), False)
sketch26.addGeometry(Part.LineSegment(App.Vector(1, 19, 0), App.Vector(1, 25, 0)), False)
sketch26.addGeometry(Part.LineSegment(App.Vector(1, 25, 0), App.Vector(0, 25, 0)), False)
sketch26.addConstraint(Sketcher.Constraint("Coincident", 0, 2, 1, 1))
sketch26.addConstraint(Sketcher.Constraint("Coincident", 1, 2, 2, 1))
sketch26.addConstraint(Sketcher.Constraint("Coincident", 2, 2, 3, 1))
sketch26.addConstraint(Sketcher.Constraint("Coincident", 3, 2, 0, 1))
sketch26.addConstraint(Sketcher.Constraint("Vertical", 0))
sketch26.addConstraint(Sketcher.Constraint("Horizontal", 1))
sketch26.addConstraint(Sketcher.Constraint("Vertical", 2))
sketch26.addConstraint(Sketcher.Constraint("Horizontal", 3))
sketch26.addConstraint(Sketcher.Constraint("PointOnObject", 0, 2, -2))
sketch26.addConstraint(Sketcher.Constraint("DistanceX", 1, 1, 1, 2, Q("1 mm")))
sketch26.addConstraint(Sketcher.Constraint("DistanceY", 0, 2, 0, 1, Q("6 mm")))
sketch26.addConstraint(Sketcher.Constraint("DistanceY", -1, 1, 0, 2, Q("19 mm")))
pad26 = doc.addObject("PartDesign::Pad", "Pad025")
body27.addObject(pad26)
pad26.Profile = sketch26
pad26.Length = 1
doc.recompute()

boolean25 = doc.addObject("PartDesign::Boolean", "Boolean024")
body27.addObject(boolean25)
boolean25.Type = "Fuse"
boolean25.addObjects([body26])
doc.recompute()

boolean26 = doc.addObject("PartDesign::Boolean", "Boolean025")
body27.addObject(boolean26)
boolean26.Type = "Fuse"
boolean26.addObjects([body25])

doc.recompute()
